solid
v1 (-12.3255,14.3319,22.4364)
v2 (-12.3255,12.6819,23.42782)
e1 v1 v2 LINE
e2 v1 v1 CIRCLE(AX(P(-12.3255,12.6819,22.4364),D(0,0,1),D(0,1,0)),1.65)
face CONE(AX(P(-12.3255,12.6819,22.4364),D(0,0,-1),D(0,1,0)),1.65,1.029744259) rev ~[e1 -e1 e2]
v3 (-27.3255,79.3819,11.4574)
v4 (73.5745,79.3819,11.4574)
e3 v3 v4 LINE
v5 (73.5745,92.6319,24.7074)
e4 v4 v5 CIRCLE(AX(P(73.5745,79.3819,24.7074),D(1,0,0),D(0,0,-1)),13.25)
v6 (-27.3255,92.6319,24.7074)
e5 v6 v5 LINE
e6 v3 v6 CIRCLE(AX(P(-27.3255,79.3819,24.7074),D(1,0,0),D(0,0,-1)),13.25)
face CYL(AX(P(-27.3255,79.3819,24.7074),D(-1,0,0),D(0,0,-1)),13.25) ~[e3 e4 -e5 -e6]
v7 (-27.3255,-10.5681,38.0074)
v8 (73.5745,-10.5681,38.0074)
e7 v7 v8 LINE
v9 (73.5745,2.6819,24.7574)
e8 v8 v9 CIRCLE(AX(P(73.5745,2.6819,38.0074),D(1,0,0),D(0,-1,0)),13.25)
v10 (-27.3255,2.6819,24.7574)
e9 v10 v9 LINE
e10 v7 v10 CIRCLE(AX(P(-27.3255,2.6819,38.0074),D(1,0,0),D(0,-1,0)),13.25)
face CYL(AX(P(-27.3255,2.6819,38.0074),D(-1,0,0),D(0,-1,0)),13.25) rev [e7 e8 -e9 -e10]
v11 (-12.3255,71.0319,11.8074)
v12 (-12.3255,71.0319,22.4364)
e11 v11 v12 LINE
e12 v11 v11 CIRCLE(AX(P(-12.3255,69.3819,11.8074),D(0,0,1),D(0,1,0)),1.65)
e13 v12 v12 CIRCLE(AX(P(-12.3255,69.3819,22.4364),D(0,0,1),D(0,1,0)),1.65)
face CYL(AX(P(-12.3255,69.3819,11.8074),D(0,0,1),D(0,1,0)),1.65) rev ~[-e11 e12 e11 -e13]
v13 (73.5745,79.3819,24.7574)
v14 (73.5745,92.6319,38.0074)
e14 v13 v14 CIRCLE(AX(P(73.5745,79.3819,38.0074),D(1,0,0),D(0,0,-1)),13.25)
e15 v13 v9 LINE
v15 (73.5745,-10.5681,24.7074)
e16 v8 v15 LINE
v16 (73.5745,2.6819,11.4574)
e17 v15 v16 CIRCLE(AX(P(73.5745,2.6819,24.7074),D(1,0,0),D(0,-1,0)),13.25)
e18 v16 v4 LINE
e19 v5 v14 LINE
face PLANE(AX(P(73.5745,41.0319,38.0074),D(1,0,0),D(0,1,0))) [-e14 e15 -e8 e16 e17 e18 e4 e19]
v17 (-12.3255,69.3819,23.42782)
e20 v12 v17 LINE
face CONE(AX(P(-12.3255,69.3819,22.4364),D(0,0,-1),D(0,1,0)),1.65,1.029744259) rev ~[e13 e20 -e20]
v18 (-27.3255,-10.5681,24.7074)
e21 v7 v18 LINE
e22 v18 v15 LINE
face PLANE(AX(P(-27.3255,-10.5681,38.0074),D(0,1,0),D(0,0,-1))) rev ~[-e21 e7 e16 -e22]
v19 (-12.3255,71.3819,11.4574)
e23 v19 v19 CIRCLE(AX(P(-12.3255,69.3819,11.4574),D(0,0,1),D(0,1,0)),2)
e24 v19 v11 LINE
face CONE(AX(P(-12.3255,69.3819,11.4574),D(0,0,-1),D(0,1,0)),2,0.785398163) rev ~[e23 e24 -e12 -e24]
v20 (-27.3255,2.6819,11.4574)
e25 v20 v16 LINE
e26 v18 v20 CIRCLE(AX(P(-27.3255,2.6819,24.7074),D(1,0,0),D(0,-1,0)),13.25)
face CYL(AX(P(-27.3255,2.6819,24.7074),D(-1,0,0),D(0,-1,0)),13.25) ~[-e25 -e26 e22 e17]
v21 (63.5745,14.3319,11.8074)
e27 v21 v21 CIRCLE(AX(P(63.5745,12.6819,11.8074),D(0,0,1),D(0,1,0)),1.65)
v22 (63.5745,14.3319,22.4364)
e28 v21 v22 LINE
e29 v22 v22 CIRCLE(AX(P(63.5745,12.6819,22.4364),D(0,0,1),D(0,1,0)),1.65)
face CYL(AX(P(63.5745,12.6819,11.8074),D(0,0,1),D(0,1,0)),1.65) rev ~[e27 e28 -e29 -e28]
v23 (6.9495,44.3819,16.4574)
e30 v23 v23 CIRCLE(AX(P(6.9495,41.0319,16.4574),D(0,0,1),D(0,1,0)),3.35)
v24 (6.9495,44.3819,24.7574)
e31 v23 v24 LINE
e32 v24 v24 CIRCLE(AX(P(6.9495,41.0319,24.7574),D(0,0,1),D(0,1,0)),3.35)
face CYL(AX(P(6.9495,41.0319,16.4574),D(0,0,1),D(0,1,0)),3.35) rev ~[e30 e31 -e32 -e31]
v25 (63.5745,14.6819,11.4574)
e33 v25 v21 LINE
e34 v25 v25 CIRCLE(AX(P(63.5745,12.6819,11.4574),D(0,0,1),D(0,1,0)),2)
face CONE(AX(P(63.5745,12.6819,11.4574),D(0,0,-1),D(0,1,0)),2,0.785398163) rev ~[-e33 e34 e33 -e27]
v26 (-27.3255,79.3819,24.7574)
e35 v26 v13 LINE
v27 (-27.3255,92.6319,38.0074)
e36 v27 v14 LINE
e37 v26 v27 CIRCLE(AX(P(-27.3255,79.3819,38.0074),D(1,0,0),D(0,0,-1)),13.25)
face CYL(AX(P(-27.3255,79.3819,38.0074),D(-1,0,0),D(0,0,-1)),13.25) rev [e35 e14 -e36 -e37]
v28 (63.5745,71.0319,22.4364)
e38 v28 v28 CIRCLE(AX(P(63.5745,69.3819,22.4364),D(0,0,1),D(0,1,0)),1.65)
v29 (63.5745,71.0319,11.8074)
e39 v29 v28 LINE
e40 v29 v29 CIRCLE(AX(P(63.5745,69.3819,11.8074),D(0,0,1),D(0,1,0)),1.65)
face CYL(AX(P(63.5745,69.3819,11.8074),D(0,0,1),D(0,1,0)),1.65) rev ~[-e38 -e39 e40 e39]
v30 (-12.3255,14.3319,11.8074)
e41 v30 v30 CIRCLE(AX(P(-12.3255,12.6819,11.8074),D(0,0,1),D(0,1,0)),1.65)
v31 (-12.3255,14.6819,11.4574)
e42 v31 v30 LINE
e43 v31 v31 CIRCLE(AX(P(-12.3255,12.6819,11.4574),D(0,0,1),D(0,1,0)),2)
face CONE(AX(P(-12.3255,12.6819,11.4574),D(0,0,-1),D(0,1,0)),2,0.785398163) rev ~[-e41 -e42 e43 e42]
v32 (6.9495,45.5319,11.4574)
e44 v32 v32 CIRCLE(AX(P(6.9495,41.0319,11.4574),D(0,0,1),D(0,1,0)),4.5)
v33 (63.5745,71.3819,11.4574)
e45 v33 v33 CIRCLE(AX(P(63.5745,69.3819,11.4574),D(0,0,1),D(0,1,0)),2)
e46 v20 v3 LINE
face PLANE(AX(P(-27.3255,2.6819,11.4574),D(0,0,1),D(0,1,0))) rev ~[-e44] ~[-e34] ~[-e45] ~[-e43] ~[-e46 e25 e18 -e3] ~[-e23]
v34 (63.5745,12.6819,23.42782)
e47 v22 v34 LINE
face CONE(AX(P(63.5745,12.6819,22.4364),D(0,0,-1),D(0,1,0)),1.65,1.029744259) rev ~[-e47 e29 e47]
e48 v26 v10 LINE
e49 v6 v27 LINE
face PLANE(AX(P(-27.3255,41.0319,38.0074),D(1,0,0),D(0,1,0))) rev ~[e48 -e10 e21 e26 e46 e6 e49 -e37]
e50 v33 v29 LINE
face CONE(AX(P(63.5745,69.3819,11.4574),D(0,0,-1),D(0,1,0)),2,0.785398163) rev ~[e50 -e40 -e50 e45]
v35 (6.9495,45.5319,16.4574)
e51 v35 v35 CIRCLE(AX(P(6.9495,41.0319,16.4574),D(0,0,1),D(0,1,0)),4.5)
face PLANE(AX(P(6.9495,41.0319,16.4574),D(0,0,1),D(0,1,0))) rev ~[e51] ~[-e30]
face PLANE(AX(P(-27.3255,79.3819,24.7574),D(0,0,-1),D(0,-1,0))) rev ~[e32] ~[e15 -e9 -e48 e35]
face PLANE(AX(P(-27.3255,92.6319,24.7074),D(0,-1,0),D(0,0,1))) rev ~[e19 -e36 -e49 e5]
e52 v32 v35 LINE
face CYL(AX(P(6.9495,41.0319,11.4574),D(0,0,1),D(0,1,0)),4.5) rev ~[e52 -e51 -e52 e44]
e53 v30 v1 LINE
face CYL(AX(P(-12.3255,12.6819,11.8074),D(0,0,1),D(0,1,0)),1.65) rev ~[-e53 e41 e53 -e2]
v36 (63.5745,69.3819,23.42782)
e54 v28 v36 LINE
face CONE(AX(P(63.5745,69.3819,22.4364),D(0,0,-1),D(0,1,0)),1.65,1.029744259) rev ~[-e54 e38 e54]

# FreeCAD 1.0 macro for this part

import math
import FreeCAD as App
import Part
import Sketcher
Q = App.Units.Quantity

doc = App.newDocument("Part")
body = doc.addObject("PartDesign::Body", "Body")

sketch1 = body.newObject("Sketcher::SketchObject", "Sketch")
sketch1.AttachmentSupport = (doc.getObject("YZ_Plane"), [""])
sketch1.MapMode = "FlatFace"
sketch1.AttachmentOffset = App.Placement(App.Vector(0, 0, -27.3255), App.Rotation())
sketch1.addGeometry([
    Part.LineSegment(App.Vector(-11, 38, 0), App.Vector(-11, 25, 0)),
    Part.ArcOfCircle(Part.Circle(App.Vector(3, 25, 0), App.Vector(0, 0, 1), 13), math.radians(180), math.radians(270)),
    Part.LineSegment(App.Vector(3, 11, 0), App.Vector(79, 11, 0)),
    Part.ArcOfCircle(Part.Circle(App.Vector(79, 25, 0), App.Vector(0, 0, 1), 13), math.radians(-90), math.radians(0)),
    Part.LineSegment(App.Vector(93, 25, 0), App.Vector(93, 38, 0)),
    Part.ArcOfCircle(Part.Circle(App.Vector(79, 38, 0), App.Vector(0, 0, 1), 13), math.radians(-90), math.radians(0)),
    Part.LineSegment(App.Vector(79, 25, 0), App.Vector(3, 25, 0)),
    Part.ArcOfCircle(Part.Circle(App.Vector(3, 38, 0), App.Vector(0, 0, 1), 13), math.radians(180), math.radians(270)),
], False)
sketch1.addConstraint([
    Sketcher.Constraint("Tangent", 0, 2, 1, 1),
    Sketcher.Constraint("Tangent", 1, 2, 2, 1),
    Sketcher.Constraint("Tangent", 2, 2, 3, 1),
    Sketcher.Constraint("Tangent", 3, 2, 4, 1),
    Sketcher.Constraint("Tangent", 4, 2, 5, 2),
    Sketcher.Constraint("Tangent", 5, 1, 6, 1),
    Sketcher.Constraint("Tangent", 6, 2, 7, 2),
    Sketcher.Constraint("Tangent", 7, 1, 0, 1),
    Sketcher.Constraint("Vertical", 0),
    Sketcher.Constraint("Horizontal", 2),
    Sketcher.Constraint("Vertical", 4),
    Sketcher.Constraint("Horizontal", 6),
    Sketcher.Constraint("Equal", 1, 3),
    Sketcher.Constraint("Equal", 3, 5),
    Sketcher.Constraint("Equal", 5, 7),
    Sketcher.Constraint("Radius", 1, Q("13.25 mm")),
    Sketcher.Constraint("DistanceX", 2, 1, 2, 2, Q("76.7 mm")),
    Sketcher.Constraint("DistanceY", 0, 2, 0, 1, Q("13.3 mm")),
    Sketcher.Constraint("DistanceX", -1, 1, 1, 3, Q("2.682 mm")),
    Sketcher.Constraint("DistanceY", -1, 1, 1, 3, Q("24.7074 mm")),
])
pad1 = body.newObject("PartDesign::Pad", "Pad")
pad1.Profile = sketch1
pad1.Length = 100.9

sketch2 = body.newObject("Sketcher::SketchObject", "Sketch001")
sketch2.AttachmentSupport = (doc.getObject("XY_Plane"), [""])
sketch2.MapMode = "FlatFace"
sketch2.AttachmentOffset = App.Placement(App.Vector(0, 0, 11.4574), App.Rotation())
sketch2.addGeometry([
    Part.Circle(App.Vector(63.6, 69.4, 0), App.Vector(0, 0, 1), 1.6),
    Part.Circle(App.Vector(63.6, 12.7, 0), App.Vector(0, 0, 1), 1.6),
    Part.Circle(App.Vector(-12.3, 12.7, 0), App.Vector(0, 0, 1), 1.6),
    Part.Circle(App.Vector(-12.3, 69.4, 0), App.Vector(0, 0, 1), 1.6),
], False)
sketch2.addConstraint([
    Sketcher.Constraint("Equal", 0, 1),
    Sketcher.Constraint("Equal", 1, 2),
    Sketcher.Constraint("Equal", 2, 3),
    Sketcher.Constraint("Horizontal", 1, 3, 2, 3),
    Sketcher.Constraint("Horizontal", 0, 3, 3, 3),
    Sketcher.Constraint("Vertical", 0, 3, 1, 3),
    Sketcher.Constraint("Vertical", 2, 3, 3, 3),
    Sketcher.Constraint("Diameter", 0, Q("3.3 mm")),
    Sketcher.Constraint("DistanceY", 1, 3, 0, 3, Q("56.7 mm")),
    Sketcher.Constraint("DistanceX", 2, 3, 1, 3, Q("75.9 mm")),
    Sketcher.Constraint("DistanceY", -1, 1, 0, 3, Q("69.382 mm")),
    Sketcher.Constraint("DistanceX", -1, 1, 0, 3, Q("63.5745 mm")),
])
doc.recompute()
hole = body.newObject("PartDesign::Hole", "Hole")
hole.Profile = sketch2
hole.ThreadType = "None"
hole.Diameter = 3.3
hole.DepthType = "Dimension"
hole.Depth = 10.979
hole.DrillPoint = "Angled"
hole.DrillPointAngle = 118
hole.HoleCutType = "Countersink"
hole.HoleCutDiameter = 4
hole.HoleCutCountersinkAngle = 90
hole.Reversed = True

sketch3 = body.newObject("Sketcher::SketchObject", "Sketch002")
sketch3.AttachmentSupport = (doc.getObject("XY_Plane"), [""])
sketch3.MapMode = "FlatFace"
sketch3.AttachmentOffset = App.Placement(App.Vector(0, 0, 11.4574), App.Rotation())
sketch3.addGeometry(Part.Circle(App.Vector(6.9, 41, 0), App.Vector(0, 0, 1), 3.4), False)
sketch3.addConstraint([
    Sketcher.Constraint("Diameter", 0, Q("6.7 mm")),
    Sketcher.Constraint("DistanceY", -1, 1, 0, 3, Q("41.032 mm")),
    Sketcher.Constraint("DistanceX", -1, 1, 0, 3, Q("6.9495 mm")),
])
doc.recompute()
hole2 = body.newObject("PartDesign::Hole", "Hole001")
hole2.Profile = sketch3
hole2.ThreadType = "None"
hole2.Diameter = 6.7
hole2.DepthType = "Dimension"
hole2.Depth = 15
hole2.DrillPoint = "Angled"
hole2.DrillPointAngle = 118
hole2.HoleCutType = "Counterbore"
hole2.HoleCutDiameter = 9
hole2.HoleCutDepth = 5
hole2.Reversed = True

doc.recompute()
